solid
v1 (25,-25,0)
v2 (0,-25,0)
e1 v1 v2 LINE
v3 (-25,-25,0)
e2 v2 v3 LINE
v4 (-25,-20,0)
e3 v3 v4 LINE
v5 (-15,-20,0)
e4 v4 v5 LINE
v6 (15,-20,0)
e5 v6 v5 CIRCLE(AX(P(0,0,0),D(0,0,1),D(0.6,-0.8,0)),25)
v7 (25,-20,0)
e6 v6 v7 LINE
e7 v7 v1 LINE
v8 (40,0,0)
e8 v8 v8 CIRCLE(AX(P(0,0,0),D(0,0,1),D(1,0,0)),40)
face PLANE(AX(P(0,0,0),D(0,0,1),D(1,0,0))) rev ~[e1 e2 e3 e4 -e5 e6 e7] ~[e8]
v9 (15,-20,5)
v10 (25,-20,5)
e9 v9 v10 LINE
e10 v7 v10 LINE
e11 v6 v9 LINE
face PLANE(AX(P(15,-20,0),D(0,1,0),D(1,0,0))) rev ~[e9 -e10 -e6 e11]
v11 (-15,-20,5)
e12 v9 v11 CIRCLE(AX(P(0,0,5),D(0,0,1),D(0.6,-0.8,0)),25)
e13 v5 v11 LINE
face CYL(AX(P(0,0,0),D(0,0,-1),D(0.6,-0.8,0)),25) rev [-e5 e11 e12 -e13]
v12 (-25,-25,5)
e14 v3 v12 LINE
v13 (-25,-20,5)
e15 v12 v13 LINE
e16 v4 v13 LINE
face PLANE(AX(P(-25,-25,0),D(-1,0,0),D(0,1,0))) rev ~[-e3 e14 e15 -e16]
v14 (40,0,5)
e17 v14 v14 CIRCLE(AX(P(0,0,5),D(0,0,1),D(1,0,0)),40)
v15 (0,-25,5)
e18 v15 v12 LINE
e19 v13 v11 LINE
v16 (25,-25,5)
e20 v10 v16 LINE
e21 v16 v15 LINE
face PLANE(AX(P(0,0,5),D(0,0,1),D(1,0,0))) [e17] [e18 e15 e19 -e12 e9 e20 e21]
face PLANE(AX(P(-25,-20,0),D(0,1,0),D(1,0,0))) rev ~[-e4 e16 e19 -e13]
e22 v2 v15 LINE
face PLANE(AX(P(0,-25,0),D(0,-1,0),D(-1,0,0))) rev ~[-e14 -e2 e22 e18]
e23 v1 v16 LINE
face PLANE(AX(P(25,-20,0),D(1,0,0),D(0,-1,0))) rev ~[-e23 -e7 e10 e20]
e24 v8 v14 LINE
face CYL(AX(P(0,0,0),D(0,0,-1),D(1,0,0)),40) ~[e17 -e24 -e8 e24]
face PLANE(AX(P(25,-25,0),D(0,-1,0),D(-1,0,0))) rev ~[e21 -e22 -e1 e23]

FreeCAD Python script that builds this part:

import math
import FreeCAD as App
import Part
import Sketcher

V = App.Vector

doc = App.newDocument("Part")
body = doc.addObject("PartDesign::Body", "Body")

# Sketch on XY plane
sketch1 = body.newObject("Sketcher::SketchObject", "Sketch")
sketch1.AttachmentSupport = (doc.getObject("XY_Plane"), [""])
sketch1.MapMode = "FlatFace"
sketch1.addGeometry([
    Part.Circle(V(0, 0, 0), V(0, 0, 1), 40),  # 0
    Part.ArcOfCircle(Part.Circle(V(0, 0, 0), V(0, 0, 1), 25), math.radians(-53), math.radians(233)),  # 1
    Part.LineSegment(V(15, -20, 0), V(25, -20, 0)),  # 2
    Part.LineSegment(V(25, -20, 0), V(25, -25, 0)),  # 3
    Part.LineSegment(V(25, -25, 0), V(-25, -25, 0)),  # 4
    Part.LineSegment(V(-25, -25, 0), V(-25, -20, 0)),  # 5
    Part.LineSegment(V(-25, -20, 0), V(-15, -20, 0)),  # 6
], False)
sketch1.addConstraint([
    Sketcher.Constraint("Coincident", 1, 1, 2, 1),
    Sketcher.Constraint("Coincident", 2, 2, 3, 1),
    Sketcher.Constraint("Coincident", 3, 2, 4, 1),
    Sketcher.Constraint("Coincident", 4, 2, 5, 1),
    Sketcher.Constraint("Coincident", 5, 2, 6, 1),
    Sketcher.Constraint("Coincident", 6, 2, 1, 2),
    Sketcher.Constraint("Horizontal", 2),
    Sketcher.Constraint("Vertical", 3),
    Sketcher.Constraint("Horizontal", 4),
    Sketcher.Constraint("Vertical", 5),
    Sketcher.Constraint("Horizontal", 6),
    Sketcher.Constraint("Coincident", 0, 3, -1, 1),
    Sketcher.Constraint("Coincident", 1, 3, -1, 1),
    Sketcher.Constraint("Symmetric", 2, 2, 5, 2, -2),
    Sketcher.Constraint("Diameter", 0, 80.0),
    Sketcher.Constraint("Radius", 1, 25.0),
    Sketcher.Constraint("DistanceX", 4, 2, 4, 1, 50.0),
    Sketcher.Constraint("DistanceY", 3, 2, 3, 1, 5.0),
    Sketcher.Constraint("DistanceY", 3, 2, -1, 1, 25.0),
])
pad1 = body.newObject("PartDesign::Pad", "Pad")
pad1.Profile = sketch1
pad1.Length = 5

doc.recompute()
